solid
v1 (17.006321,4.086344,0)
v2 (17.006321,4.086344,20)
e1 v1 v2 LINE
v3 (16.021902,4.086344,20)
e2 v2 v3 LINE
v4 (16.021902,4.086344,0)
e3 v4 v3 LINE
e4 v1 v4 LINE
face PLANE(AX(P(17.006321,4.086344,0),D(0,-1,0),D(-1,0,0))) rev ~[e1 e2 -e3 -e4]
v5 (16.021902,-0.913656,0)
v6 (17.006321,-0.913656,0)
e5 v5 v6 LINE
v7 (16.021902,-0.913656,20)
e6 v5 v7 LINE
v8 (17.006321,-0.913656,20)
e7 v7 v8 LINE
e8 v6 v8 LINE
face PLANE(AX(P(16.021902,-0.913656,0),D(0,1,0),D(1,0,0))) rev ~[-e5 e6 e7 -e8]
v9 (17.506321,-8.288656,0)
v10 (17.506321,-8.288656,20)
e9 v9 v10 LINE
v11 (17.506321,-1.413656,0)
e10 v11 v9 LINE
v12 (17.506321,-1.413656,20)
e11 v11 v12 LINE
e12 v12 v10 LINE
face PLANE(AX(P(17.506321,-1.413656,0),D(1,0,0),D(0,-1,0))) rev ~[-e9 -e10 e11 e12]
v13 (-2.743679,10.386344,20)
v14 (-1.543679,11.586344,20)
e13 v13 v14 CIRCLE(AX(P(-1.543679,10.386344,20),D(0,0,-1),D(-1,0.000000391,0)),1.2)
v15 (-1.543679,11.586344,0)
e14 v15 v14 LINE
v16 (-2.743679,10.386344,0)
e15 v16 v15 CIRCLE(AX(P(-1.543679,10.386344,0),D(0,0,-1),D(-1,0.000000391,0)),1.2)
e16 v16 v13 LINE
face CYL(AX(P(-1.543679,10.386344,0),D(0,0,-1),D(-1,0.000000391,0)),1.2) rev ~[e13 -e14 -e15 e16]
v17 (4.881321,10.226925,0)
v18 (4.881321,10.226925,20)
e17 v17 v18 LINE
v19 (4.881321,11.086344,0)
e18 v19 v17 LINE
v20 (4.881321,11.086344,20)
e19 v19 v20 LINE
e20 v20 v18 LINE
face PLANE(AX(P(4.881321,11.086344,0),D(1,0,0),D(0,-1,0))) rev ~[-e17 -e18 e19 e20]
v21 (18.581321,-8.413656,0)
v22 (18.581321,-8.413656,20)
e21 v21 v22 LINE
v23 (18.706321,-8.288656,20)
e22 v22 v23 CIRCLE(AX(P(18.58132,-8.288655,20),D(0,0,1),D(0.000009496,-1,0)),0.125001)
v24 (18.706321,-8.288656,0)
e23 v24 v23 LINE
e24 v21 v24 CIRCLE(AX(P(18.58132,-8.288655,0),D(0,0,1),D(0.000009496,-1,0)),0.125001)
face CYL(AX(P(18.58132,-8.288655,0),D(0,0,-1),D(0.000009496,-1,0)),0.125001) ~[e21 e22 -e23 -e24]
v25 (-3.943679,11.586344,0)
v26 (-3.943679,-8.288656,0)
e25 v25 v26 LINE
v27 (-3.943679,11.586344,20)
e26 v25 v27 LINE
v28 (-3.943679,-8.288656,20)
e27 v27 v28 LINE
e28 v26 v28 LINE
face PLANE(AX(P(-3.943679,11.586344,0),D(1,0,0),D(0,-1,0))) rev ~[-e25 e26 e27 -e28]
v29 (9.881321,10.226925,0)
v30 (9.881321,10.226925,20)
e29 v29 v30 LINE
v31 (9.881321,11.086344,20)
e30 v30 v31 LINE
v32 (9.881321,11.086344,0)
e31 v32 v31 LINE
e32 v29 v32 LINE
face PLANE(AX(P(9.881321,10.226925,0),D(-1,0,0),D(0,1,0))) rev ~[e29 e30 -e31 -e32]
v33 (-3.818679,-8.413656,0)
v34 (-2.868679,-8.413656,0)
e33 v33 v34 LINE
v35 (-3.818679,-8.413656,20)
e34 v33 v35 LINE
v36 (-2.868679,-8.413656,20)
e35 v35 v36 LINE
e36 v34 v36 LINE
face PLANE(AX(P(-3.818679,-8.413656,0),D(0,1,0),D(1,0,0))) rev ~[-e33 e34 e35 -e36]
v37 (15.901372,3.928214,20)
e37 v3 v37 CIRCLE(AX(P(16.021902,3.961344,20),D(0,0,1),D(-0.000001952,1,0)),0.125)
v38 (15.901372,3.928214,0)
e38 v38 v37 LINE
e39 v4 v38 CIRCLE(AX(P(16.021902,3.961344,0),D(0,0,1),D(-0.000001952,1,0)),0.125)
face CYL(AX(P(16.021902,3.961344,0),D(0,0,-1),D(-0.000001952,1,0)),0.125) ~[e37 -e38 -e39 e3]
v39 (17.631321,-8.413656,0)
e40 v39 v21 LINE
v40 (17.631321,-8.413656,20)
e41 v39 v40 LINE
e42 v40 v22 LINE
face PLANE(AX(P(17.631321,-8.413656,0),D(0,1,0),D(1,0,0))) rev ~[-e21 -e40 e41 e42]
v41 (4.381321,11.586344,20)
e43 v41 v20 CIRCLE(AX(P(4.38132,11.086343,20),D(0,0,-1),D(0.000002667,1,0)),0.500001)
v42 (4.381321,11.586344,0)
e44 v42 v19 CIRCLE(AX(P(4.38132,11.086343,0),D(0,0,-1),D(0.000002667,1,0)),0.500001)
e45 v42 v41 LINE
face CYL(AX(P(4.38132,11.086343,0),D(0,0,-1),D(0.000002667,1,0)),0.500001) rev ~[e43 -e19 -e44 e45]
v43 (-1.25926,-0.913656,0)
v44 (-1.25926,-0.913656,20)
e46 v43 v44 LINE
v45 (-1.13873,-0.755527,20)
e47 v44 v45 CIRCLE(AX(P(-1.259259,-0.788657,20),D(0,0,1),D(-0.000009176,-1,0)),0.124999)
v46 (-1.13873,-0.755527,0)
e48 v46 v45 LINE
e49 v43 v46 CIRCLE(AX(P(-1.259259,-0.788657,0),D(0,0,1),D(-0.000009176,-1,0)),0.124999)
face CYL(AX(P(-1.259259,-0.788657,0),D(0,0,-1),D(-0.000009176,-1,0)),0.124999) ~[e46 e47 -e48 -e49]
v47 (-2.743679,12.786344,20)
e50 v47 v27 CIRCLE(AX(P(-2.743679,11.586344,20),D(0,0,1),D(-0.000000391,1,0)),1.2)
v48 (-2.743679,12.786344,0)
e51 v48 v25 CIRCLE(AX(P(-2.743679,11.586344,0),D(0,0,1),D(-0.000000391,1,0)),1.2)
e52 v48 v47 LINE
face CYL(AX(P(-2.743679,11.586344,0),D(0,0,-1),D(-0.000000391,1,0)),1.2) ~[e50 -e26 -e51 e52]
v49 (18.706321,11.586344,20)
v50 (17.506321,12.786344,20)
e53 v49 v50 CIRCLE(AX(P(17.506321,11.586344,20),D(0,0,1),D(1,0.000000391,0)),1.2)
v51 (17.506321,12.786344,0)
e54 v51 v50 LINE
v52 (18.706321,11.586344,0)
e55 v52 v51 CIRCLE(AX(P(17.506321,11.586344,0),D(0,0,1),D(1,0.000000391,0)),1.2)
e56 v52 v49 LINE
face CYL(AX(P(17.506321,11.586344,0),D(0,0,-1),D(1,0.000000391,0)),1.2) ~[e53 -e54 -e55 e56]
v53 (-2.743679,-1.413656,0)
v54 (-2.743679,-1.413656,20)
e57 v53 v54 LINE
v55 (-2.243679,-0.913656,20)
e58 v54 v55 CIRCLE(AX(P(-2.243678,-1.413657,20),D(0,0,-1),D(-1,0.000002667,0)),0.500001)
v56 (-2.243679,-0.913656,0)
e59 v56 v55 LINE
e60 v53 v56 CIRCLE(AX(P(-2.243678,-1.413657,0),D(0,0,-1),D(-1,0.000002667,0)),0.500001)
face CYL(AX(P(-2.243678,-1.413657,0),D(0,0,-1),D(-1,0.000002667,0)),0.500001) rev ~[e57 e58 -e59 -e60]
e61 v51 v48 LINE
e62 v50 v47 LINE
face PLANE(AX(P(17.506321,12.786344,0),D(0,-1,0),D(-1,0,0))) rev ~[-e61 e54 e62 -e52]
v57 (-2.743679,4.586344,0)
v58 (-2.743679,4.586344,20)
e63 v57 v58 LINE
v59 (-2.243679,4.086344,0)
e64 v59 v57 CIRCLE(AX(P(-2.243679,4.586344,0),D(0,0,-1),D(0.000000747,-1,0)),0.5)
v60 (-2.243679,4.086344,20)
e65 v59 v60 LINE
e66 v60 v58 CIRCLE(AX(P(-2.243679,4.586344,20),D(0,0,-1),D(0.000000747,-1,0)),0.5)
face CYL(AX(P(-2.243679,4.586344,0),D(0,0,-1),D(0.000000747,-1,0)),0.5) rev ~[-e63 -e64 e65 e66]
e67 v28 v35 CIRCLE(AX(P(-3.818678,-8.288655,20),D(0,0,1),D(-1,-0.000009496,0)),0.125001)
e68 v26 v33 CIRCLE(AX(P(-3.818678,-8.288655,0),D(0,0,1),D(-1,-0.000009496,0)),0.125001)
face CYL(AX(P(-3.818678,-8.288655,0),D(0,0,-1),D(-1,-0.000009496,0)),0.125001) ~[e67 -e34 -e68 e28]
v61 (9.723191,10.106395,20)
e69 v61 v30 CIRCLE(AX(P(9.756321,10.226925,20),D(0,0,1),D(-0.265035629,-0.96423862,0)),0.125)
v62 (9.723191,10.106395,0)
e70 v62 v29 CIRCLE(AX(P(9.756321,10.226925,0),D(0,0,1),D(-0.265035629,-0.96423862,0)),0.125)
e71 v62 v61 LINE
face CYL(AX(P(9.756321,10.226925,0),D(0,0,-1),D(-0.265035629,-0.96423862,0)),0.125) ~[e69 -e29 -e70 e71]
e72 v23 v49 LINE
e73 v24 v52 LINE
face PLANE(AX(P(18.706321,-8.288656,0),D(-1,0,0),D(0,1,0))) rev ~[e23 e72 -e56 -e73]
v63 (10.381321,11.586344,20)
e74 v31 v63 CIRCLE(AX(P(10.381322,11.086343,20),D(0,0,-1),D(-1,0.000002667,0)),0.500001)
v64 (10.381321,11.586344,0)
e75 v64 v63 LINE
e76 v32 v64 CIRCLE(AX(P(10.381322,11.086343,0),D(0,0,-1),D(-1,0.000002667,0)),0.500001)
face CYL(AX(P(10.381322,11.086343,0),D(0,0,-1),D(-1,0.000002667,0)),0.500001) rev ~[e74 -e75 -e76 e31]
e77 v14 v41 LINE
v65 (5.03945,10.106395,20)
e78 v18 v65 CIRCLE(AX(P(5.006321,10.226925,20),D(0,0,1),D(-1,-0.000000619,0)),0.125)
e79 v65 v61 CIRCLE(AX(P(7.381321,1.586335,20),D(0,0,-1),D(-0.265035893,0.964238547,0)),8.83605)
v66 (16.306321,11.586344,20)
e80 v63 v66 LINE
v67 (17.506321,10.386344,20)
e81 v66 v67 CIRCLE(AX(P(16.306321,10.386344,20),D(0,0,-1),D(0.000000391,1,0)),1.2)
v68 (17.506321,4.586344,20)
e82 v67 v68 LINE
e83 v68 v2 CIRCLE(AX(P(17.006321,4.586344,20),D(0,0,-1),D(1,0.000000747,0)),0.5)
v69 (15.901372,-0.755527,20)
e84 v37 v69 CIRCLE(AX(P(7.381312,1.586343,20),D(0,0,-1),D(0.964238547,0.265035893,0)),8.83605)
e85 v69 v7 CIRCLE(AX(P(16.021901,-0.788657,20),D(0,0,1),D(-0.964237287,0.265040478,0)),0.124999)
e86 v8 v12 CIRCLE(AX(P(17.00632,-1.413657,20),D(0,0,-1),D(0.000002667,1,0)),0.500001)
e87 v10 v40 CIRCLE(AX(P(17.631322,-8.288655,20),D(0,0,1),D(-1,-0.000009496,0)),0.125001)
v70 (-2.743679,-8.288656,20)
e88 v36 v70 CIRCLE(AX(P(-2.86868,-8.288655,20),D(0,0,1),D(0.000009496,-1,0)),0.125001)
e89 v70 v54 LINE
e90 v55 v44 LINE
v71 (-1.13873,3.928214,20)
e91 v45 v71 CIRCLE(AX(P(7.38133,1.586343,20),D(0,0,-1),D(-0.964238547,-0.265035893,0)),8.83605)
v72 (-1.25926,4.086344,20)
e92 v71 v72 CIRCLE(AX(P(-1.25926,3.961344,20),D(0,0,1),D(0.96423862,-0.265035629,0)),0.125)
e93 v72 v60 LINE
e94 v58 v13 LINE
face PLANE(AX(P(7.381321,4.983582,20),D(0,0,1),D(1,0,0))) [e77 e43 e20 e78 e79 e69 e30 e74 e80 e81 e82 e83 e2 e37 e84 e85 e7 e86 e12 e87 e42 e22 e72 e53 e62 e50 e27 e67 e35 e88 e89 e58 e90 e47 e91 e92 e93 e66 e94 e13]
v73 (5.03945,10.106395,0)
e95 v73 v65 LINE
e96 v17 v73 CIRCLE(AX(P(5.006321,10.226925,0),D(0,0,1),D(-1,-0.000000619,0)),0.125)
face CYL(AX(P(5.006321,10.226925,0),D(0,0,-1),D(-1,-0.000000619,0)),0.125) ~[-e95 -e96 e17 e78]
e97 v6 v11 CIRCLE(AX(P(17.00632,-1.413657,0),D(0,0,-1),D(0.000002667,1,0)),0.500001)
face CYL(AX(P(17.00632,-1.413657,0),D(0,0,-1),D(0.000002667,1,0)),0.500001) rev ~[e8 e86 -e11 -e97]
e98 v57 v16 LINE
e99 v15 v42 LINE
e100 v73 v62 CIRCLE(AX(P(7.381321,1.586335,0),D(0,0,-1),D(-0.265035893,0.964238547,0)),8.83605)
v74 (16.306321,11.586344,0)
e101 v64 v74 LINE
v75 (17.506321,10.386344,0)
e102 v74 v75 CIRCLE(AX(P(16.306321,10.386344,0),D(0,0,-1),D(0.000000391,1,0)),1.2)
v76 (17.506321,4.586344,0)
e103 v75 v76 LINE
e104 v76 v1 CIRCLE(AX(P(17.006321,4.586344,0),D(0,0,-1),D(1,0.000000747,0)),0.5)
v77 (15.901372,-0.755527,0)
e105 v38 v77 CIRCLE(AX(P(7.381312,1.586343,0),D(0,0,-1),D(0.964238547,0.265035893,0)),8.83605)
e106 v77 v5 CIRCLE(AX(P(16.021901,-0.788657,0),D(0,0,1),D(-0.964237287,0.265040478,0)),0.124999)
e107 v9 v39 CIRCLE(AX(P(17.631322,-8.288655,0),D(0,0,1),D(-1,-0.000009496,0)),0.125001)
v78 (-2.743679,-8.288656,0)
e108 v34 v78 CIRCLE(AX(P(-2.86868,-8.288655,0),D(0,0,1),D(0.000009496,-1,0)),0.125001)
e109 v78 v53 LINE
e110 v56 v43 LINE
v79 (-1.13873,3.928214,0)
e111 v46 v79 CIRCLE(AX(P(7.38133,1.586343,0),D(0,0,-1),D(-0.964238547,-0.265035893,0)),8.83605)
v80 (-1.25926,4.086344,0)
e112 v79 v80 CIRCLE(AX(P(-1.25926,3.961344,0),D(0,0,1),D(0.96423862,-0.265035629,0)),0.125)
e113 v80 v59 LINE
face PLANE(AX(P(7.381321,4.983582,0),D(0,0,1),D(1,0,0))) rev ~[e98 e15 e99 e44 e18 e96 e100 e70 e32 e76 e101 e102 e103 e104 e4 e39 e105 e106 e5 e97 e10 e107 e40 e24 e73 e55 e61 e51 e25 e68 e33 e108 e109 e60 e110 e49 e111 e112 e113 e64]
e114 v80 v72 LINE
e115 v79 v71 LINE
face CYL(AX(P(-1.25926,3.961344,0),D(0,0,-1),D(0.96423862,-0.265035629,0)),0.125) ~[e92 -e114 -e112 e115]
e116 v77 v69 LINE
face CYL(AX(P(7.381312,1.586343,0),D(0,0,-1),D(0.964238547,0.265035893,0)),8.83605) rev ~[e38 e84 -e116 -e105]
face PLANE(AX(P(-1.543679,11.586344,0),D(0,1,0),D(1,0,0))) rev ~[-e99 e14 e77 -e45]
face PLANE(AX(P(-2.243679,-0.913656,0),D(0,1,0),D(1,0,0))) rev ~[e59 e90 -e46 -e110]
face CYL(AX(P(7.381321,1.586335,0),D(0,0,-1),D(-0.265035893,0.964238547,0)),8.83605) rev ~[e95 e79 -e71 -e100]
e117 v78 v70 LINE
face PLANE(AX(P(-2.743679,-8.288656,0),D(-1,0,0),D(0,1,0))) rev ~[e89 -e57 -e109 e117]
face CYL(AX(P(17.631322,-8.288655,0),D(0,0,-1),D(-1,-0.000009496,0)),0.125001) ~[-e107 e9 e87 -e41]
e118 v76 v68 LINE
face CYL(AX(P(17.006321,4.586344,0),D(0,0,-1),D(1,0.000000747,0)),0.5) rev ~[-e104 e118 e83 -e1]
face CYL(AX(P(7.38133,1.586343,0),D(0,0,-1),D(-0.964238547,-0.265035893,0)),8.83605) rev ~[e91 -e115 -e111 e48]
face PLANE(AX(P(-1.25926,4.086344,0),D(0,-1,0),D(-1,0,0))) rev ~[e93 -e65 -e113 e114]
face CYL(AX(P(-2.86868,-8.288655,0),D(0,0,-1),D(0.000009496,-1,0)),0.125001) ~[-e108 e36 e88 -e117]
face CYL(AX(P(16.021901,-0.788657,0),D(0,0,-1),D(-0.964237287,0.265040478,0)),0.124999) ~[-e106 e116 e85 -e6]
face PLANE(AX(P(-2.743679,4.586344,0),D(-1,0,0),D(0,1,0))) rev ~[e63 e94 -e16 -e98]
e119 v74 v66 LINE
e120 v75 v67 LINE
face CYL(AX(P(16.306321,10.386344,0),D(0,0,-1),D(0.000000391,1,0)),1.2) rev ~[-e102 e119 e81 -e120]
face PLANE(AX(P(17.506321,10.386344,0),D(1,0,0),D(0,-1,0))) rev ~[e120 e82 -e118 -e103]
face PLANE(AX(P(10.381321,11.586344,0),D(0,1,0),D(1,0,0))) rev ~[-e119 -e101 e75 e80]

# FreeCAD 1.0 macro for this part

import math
import FreeCAD as App
import Part
import Sketcher
from FreeCAD import Vector

doc = App.newDocument("Part")
body = doc.addObject("PartDesign::Body", "Body")

# Sketch on XY plane
sketch1 = doc.addObject("Sketcher::SketchObject", "Sketch")
body.addObject(sketch1)
sketch1.AttachmentSupport = (doc.XY_Plane, [""])
sketch1.MapMode = "FlatFace"
sketch1.addGeometry([
    Part.LineSegment(Vector(-3.943679, 11.586344, 0), Vector(-3.943679, -8.288656, 0)),  # 0
    Part.ArcOfCircle(Part.Circle(Vector(-3.818678, -8.288655, 0), Vector(0, 0, 1), 0.125001), math.radians(-179.999456), math.radians(-90.000544)),  # 1
    Part.LineSegment(Vector(-3.818679, -8.413656, 0), Vector(-2.868679, -8.413656, 0)),  # 2
    Part.ArcOfCircle(Part.Circle(Vector(-2.86868, -8.288655, 0), Vector(0, 0, 1), 0.125001), math.radians(-89.999456), math.radians(-0.000544)),  # 3
    Part.LineSegment(Vector(-2.743679, -8.288656, 0), Vector(-2.743679, -1.413656, 0)),  # 4
    Part.ArcOfCircle(Part.Circle(Vector(-2.243678, -1.413657, 0), Vector(0, 0, 1), 0.500001), math.radians(90.000153), math.radians(179.999847)),  # 5
    Part.LineSegment(Vector(-2.243679, -0.913656, 0), Vector(-1.25926, -0.913656, 0)),  # 6
    Part.ArcOfCircle(Part.Circle(Vector(-1.259259, -0.788657, 0), Vector(0, 0, 1), 0.124999), math.radians(-90.000526), math.radians(15.369358)),  # 7
    Part.ArcOfCircle(Part.Circle(Vector(7.38133, 1.586343, 0), Vector(0, 0, 1), 8.83605), math.radians(164.630914), math.radians(195.369086)),  # 8
    Part.ArcOfCircle(Part.Circle(Vector(-1.25926, 3.961344, 0), Vector(0, 0, 1), 0.125), math.radians(-15.36907), math.radians(89.999888)),  # 9
    Part.LineSegment(Vector(-1.25926, 4.086344, 0), Vector(-2.243679, 4.086344, 0)),  # 10
    Part.ArcOfCircle(Part.Circle(Vector(-2.243679, 4.586344, 0), Vector(0, 0, 1), 0.5), math.radians(179.999957), math.radians(270.000043)),  # 11
    Part.LineSegment(Vector(-2.743679, 4.586344, 0), Vector(-2.743679, 10.386344, 0)),  # 12
    Part.ArcOfCircle(Part.Circle(Vector(-1.543679, 10.386344, 0), Vector(0, 0, 1), 1.2), math.radians(90.000022), math.radians(179.999978)),  # 13
    Part.LineSegment(Vector(-1.543679, 11.586344, 0), Vector(4.381321, 11.586344, 0)),  # 14
    Part.ArcOfCircle(Part.Circle(Vector(4.38132, 11.086343, 0), Vector(0, 0, 1), 0.500001), math.radians(0.000153), math.radians(89.999847)),  # 15
    Part.LineSegment(Vector(4.881321, 11.086344, 0), Vector(4.881321, 10.226925, 0)),  # 16
    Part.ArcOfCircle(Part.Circle(Vector(5.006321, 10.226925, 0), Vector(0, 0, 1), 0.125), math.radians(-179.999965), math.radians(-74.631203)),  # 17
    Part.ArcOfCircle(Part.Circle(Vector(7.381321, 1.586335, 0), Vector(0, 0, 1), 8.83605), math.radians(74.630914), math.radians(105.369086)),  # 18
    Part.ArcOfCircle(Part.Circle(Vector(9.756321, 10.226925, 0), Vector(0, 0, 1), 0.125), math.radians(-105.36907), math.radians(-0.000112)),  # 19
    Part.LineSegment(Vector(9.881321, 10.226925, 0), Vector(9.881321, 11.086344, 0)),  # 20
    Part.ArcOfCircle(Part.Circle(Vector(10.381322, 11.086343, 0), Vector(0, 0, 1), 0.500001), math.radians(90.000153), math.radians(179.999847)),  # 21
    Part.LineSegment(Vector(10.381321, 11.586344, 0), Vector(16.306321, 11.586344, 0)),  # 22
    Part.ArcOfCircle(Part.Circle(Vector(16.306321, 10.386344, 0), Vector(0, 0, 1), 1.2), math.radians(0.000022), math.radians(89.999978)),  # 23
    Part.LineSegment(Vector(17.506321, 10.386344, 0), Vector(17.506321, 4.586344, 0)),  # 24
    Part.ArcOfCircle(Part.Circle(Vector(17.006321, 4.586344, 0), Vector(0, 0, 1), 0.5), math.radians(-90.000043), math.radians(0.000043)),  # 25
    Part.LineSegment(Vector(17.006321, 4.086344, 0), Vector(16.021902, 4.086344, 0)),  # 26
    Part.ArcOfCircle(Part.Circle(Vector(16.021902, 3.961344, 0), Vector(0, 0, 1), 0.125), math.radians(90.000112), math.radians(195.36907)),  # 27
    Part.ArcOfCircle(Part.Circle(Vector(7.381312, 1.586343, 0), Vector(0, 0, 1), 8.83605), math.radians(-15.369086), math.radians(15.369086)),  # 28
    Part.ArcOfCircle(Part.Circle(Vector(16.021901, -0.788657, 0), Vector(0, 0, 1), 0.124999), math.radians(164.630642), math.radians(270.000526)),  # 29
    Part.LineSegment(Vector(16.021902, -0.913656, 0), Vector(17.006321, -0.913656, 0)),  # 30
    Part.ArcOfCircle(Part.Circle(Vector(17.00632, -1.413657, 0), Vector(0, 0, 1), 0.500001), math.radians(0.000153), math.radians(89.999847)),  # 31
    Part.LineSegment(Vector(17.506321, -1.413656, 0), Vector(17.506321, -8.288656, 0)),  # 32
    Part.ArcOfCircle(Part.Circle(Vector(17.631322, -8.288655, 0), Vector(0, 0, 1), 0.125001), math.radians(-179.999456), math.radians(-90.000544)),  # 33
    Part.LineSegment(Vector(17.631321, -8.413656, 0), Vector(18.581321, -8.413656, 0)),  # 34
    Part.ArcOfCircle(Part.Circle(Vector(18.58132, -8.288655, 0), Vector(0, 0, 1), 0.125001), math.radians(-89.999456), math.radians(-0.000544)),  # 35
    Part.LineSegment(Vector(18.706321, -8.288656, 0), Vector(18.706321, 11.586344, 0)),  # 36
    Part.ArcOfCircle(Part.Circle(Vector(17.506321, 11.586344, 0), Vector(0, 0, 1), 1.2), math.radians(0.000022), math.radians(89.999978)),  # 37
    Part.LineSegment(Vector(17.506321, 12.786344, 0), Vector(-2.743679, 12.786344, 0)),  # 38
    Part.ArcOfCircle(Part.Circle(Vector(-2.743679, 11.586344, 0), Vector(0, 0, 1), 1.2), math.radians(90.000022), math.radians(179.999978)),  # 39
], False)
sketch1.addConstraint([
    Sketcher.Constraint("Coincident", 0, 2, 1, 1),
    Sketcher.Constraint("Coincident", 1, 2, 2, 1),
    Sketcher.Constraint("Coincident", 2, 2, 3, 1),
    Sketcher.Constraint("Coincident", 3, 2, 4, 1),
    Sketcher.Constraint("Coincident", 4, 2, 5, 2),
    Sketcher.Constraint("Coincident", 5, 1, 6, 1),
    Sketcher.Constraint("Coincident", 6, 2, 7, 1),
    Sketcher.Constraint("Coincident", 7, 2, 8, 2),
    Sketcher.Constraint("Tangent", 8, 1, 9, 1),
    Sketcher.Constraint("Tangent", 9, 2, 10, 1),
    Sketcher.Constraint("Tangent", 10, 2, 11, 2),
    Sketcher.Constraint("Tangent", 11, 1, 12, 1),
    Sketcher.Constraint("Tangent", 12, 2, 13, 2),
    Sketcher.Constraint("Tangent", 13, 1, 14, 1),
    Sketcher.Constraint("Coincident", 14, 2, 15, 2),
    Sketcher.Constraint("Coincident", 15, 1, 16, 1),
    Sketcher.Constraint("Tangent", 16, 2, 17, 1),
    Sketcher.Constraint("Coincident", 17, 2, 18, 2),
    Sketcher.Constraint("Tangent", 18, 1, 19, 1),
    Sketcher.Constraint("Tangent", 19, 2, 20, 1),
    Sketcher.Constraint("Coincident", 20, 2, 21, 2),
    Sketcher.Constraint("Coincident", 21, 1, 22, 1),
    Sketcher.Constraint("Tangent", 22, 2, 23, 2),
    Sketcher.Constraint("Tangent", 23, 1, 24, 1),
    Sketcher.Constraint("Tangent", 24, 2, 25, 2),
    Sketcher.Constraint("Tangent", 25, 1, 26, 1),
    Sketcher.Constraint("Tangent", 26, 2, 27, 1),
    Sketcher.Constraint("Tangent", 27, 2, 28, 2),
    Sketcher.Constraint("Coincident", 28, 1, 29, 1),
    Sketcher.Constraint("Coincident", 29, 2, 30, 1),
    Sketcher.Constraint("Coincident", 30, 2, 31, 2),
    Sketcher.Constraint("Coincident", 31, 1, 32, 1),
    Sketcher.Constraint("Coincident", 32, 2, 33, 1),
    Sketcher.Constraint("Coincident", 33, 2, 34, 1),
    Sketcher.Constraint("Coincident", 34, 2, 35, 1),
    Sketcher.Constraint("Coincident", 35, 2, 36, 1),
    Sketcher.Constraint("Tangent", 36, 2, 37, 1),
    Sketcher.Constraint("Tangent", 37, 2, 38, 1),
    Sketcher.Constraint("Tangent", 38, 2, 39, 1),
    Sketcher.Constraint("Tangent", 39, 2, 0, 1),
    Sketcher.Constraint("Vertical", 0),
    Sketcher.Constraint("Horizontal", 2),
    Sketcher.Constraint("Vertical", 4),
    Sketcher.Constraint("Horizontal", 6),
    Sketcher.Constraint("Horizontal", 10),
    Sketcher.Constraint("Vertical", 12),
    Sketcher.Constraint("Horizontal", 14),
    Sketcher.Constraint("Vertical", 16),
    Sketcher.Constraint("Vertical", 20),
    Sketcher.Constraint("Horizontal", 22),
    Sketcher.Constraint("Vertical", 24),
    Sketcher.Constraint("Horizontal", 26),
    Sketcher.Constraint("Horizontal", 30),
    Sketcher.Constraint("Vertical", 32),
    Sketcher.Constraint("Horizontal", 34),
    Sketcher.Constraint("Vertical", 36),
    Sketcher.Constraint("Horizontal", 38),
    Sketcher.Constraint("Equal", 1, 3),
    Sketcher.Constraint("Equal", 7, 9),
    Sketcher.Constraint("Equal", 5, 11),
    Sketcher.Constraint("Equal", 11, 15),
    Sketcher.Constraint("Equal", 9, 17),
    Sketcher.Constraint("Equal", 8, 18),
    Sketcher.Constraint("Equal", 17, 19),
    Sketcher.Constraint("Equal", 15, 21),
    Sketcher.Constraint("Equal", 13, 23),
    Sketcher.Constraint("Equal", 21, 25),
    Sketcher.Constraint("Equal", 19, 27),
    Sketcher.Constraint("Equal", 18, 28),
    Sketcher.Constraint("Equal", 27, 29),
    Sketcher.Constraint("Equal", 25, 31),
    Sketcher.Constraint("Equal", 27, 33),
    Sketcher.Constraint("Equal", 33, 35),
    Sketcher.Constraint("Equal", 23, 37),
    Sketcher.Constraint("Equal", 37, 39),
    Sketcher.Constraint("Horizontal", 17, 3, 19, 3),
    Sketcher.Constraint("Horizontal", 15, 3, 21, 3),
    Sketcher.Constraint("Horizontal", 11, 3, 25, 3),
    Sketcher.Constraint("Horizontal", 8, 3, 28, 3),
    Sketcher.Constraint("Horizontal", 7, 3, 29, 3),
    Sketcher.Constraint("Horizontal", 3, 3, 33, 3),
    Sketcher.Constraint("Horizontal", 35, 3, 0, 2),
    Sketcher.Constraint("Horizontal", 0, 2, 3, 2),
    Sketcher.Constraint("Horizontal", 31, 3, 4, 2),
    Sketcher.Constraint("Horizontal", 39, 3, 13, 1),
    Sketcher.Constraint("Horizontal", 21, 3, 15, 1),
    Sketcher.Constraint("Horizontal", 17, 2, 18, 1),
    Sketcher.Constraint("Horizontal", 15, 1, 20, 2),
    Sketcher.Constraint("Horizontal", 7, 2, 28, 1),
    Sketcher.Constraint("Horizontal", 4, 2, 31, 1),
    Sketcher.Constraint("Horizontal", 3, 2, 32, 2),
    Sketcher.Constraint("Horizontal", 2, 2, 33, 2),
    Sketcher.Constraint("Horizontal", 32, 2, 35, 2),
    Sketcher.Constraint("Vertical", 7, 3, 9, 3),
    Sketcher.Constraint("Vertical", 5, 3, 11, 3),
    Sketcher.Constraint("Vertical", 25, 3, 31, 3),
    Sketcher.Constraint("Vertical", 3, 3, 2, 2),
    Sketcher.Constraint("Vertical", 39, 3, 3, 2),
    Sketcher.Constraint("Vertical", 11, 3, 5, 1),
    Sketcher.Constraint("Vertical", 9, 3, 6, 2),
    Sketcher.Constraint("Vertical", 7, 2, 8, 1),
    Sketcher.Constraint("Vertical", 15, 3, 14, 2),
    Sketcher.Constraint("Vertical", 37, 3, 23, 1),
    Sketcher.Constraint("Vertical", 26, 2, 29, 2),
    Sketcher.Constraint("Vertical", 25, 1, 30, 2),
    Sketcher.Constraint("Vertical", 35, 3, 34, 2),
    Sketcher.Constraint("Equal", 14, 22),
    Sketcher.Constraint("Equal", 10, 26),
    Sketcher.Constraint("Equal", 2, 34),
    Sketcher.Constraint("Radius", 5, 0.500001),
    Sketcher.Constraint("Radius", 13, 1.2),
    Sketcher.Constraint("DistanceY", 12, 1, 12, 2, 5.8),
    Sketcher.Constraint("Radius", 1, 0.125001),
    Sketcher.Constraint("DistanceX", 2, 1, 2, 2, 0.95),
    Sketcher.Constraint("DistanceX", 38, 2, 38, 1, 20.25),
    Sketcher.Constraint("DistanceX", 14, 1, 14, 2, 5.925),
    Sketcher.Constraint("DistanceY", 0, 2, 0, 1, 19.875),
    Sketcher.Constraint("DistanceY", 4, 1, 4, 2, 6.875),
    Sketcher.Constraint("Radius", 8, 8.83605),
    Sketcher.Constraint("DistanceX", 6, 1, 6, 2, 0.984419),
    Sketcher.Constraint("DistanceY", 16, 2, 16, 1, 0.859419),
    Sketcher.Constraint("DistanceX", -1, 1, 29, 3, 16.021901),
    Sketcher.Constraint("DistanceX", -1, 1, 18, 3, 7.381321),
    Sketcher.Constraint("DistanceY", 1, 3, -1, 1, 8.288655),
])
pad1 = doc.addObject("PartDesign::Pad", "Pad")
body.addObject(pad1)
pad1.Profile = sketch1
pad1.Length = 20

doc.recompute()
